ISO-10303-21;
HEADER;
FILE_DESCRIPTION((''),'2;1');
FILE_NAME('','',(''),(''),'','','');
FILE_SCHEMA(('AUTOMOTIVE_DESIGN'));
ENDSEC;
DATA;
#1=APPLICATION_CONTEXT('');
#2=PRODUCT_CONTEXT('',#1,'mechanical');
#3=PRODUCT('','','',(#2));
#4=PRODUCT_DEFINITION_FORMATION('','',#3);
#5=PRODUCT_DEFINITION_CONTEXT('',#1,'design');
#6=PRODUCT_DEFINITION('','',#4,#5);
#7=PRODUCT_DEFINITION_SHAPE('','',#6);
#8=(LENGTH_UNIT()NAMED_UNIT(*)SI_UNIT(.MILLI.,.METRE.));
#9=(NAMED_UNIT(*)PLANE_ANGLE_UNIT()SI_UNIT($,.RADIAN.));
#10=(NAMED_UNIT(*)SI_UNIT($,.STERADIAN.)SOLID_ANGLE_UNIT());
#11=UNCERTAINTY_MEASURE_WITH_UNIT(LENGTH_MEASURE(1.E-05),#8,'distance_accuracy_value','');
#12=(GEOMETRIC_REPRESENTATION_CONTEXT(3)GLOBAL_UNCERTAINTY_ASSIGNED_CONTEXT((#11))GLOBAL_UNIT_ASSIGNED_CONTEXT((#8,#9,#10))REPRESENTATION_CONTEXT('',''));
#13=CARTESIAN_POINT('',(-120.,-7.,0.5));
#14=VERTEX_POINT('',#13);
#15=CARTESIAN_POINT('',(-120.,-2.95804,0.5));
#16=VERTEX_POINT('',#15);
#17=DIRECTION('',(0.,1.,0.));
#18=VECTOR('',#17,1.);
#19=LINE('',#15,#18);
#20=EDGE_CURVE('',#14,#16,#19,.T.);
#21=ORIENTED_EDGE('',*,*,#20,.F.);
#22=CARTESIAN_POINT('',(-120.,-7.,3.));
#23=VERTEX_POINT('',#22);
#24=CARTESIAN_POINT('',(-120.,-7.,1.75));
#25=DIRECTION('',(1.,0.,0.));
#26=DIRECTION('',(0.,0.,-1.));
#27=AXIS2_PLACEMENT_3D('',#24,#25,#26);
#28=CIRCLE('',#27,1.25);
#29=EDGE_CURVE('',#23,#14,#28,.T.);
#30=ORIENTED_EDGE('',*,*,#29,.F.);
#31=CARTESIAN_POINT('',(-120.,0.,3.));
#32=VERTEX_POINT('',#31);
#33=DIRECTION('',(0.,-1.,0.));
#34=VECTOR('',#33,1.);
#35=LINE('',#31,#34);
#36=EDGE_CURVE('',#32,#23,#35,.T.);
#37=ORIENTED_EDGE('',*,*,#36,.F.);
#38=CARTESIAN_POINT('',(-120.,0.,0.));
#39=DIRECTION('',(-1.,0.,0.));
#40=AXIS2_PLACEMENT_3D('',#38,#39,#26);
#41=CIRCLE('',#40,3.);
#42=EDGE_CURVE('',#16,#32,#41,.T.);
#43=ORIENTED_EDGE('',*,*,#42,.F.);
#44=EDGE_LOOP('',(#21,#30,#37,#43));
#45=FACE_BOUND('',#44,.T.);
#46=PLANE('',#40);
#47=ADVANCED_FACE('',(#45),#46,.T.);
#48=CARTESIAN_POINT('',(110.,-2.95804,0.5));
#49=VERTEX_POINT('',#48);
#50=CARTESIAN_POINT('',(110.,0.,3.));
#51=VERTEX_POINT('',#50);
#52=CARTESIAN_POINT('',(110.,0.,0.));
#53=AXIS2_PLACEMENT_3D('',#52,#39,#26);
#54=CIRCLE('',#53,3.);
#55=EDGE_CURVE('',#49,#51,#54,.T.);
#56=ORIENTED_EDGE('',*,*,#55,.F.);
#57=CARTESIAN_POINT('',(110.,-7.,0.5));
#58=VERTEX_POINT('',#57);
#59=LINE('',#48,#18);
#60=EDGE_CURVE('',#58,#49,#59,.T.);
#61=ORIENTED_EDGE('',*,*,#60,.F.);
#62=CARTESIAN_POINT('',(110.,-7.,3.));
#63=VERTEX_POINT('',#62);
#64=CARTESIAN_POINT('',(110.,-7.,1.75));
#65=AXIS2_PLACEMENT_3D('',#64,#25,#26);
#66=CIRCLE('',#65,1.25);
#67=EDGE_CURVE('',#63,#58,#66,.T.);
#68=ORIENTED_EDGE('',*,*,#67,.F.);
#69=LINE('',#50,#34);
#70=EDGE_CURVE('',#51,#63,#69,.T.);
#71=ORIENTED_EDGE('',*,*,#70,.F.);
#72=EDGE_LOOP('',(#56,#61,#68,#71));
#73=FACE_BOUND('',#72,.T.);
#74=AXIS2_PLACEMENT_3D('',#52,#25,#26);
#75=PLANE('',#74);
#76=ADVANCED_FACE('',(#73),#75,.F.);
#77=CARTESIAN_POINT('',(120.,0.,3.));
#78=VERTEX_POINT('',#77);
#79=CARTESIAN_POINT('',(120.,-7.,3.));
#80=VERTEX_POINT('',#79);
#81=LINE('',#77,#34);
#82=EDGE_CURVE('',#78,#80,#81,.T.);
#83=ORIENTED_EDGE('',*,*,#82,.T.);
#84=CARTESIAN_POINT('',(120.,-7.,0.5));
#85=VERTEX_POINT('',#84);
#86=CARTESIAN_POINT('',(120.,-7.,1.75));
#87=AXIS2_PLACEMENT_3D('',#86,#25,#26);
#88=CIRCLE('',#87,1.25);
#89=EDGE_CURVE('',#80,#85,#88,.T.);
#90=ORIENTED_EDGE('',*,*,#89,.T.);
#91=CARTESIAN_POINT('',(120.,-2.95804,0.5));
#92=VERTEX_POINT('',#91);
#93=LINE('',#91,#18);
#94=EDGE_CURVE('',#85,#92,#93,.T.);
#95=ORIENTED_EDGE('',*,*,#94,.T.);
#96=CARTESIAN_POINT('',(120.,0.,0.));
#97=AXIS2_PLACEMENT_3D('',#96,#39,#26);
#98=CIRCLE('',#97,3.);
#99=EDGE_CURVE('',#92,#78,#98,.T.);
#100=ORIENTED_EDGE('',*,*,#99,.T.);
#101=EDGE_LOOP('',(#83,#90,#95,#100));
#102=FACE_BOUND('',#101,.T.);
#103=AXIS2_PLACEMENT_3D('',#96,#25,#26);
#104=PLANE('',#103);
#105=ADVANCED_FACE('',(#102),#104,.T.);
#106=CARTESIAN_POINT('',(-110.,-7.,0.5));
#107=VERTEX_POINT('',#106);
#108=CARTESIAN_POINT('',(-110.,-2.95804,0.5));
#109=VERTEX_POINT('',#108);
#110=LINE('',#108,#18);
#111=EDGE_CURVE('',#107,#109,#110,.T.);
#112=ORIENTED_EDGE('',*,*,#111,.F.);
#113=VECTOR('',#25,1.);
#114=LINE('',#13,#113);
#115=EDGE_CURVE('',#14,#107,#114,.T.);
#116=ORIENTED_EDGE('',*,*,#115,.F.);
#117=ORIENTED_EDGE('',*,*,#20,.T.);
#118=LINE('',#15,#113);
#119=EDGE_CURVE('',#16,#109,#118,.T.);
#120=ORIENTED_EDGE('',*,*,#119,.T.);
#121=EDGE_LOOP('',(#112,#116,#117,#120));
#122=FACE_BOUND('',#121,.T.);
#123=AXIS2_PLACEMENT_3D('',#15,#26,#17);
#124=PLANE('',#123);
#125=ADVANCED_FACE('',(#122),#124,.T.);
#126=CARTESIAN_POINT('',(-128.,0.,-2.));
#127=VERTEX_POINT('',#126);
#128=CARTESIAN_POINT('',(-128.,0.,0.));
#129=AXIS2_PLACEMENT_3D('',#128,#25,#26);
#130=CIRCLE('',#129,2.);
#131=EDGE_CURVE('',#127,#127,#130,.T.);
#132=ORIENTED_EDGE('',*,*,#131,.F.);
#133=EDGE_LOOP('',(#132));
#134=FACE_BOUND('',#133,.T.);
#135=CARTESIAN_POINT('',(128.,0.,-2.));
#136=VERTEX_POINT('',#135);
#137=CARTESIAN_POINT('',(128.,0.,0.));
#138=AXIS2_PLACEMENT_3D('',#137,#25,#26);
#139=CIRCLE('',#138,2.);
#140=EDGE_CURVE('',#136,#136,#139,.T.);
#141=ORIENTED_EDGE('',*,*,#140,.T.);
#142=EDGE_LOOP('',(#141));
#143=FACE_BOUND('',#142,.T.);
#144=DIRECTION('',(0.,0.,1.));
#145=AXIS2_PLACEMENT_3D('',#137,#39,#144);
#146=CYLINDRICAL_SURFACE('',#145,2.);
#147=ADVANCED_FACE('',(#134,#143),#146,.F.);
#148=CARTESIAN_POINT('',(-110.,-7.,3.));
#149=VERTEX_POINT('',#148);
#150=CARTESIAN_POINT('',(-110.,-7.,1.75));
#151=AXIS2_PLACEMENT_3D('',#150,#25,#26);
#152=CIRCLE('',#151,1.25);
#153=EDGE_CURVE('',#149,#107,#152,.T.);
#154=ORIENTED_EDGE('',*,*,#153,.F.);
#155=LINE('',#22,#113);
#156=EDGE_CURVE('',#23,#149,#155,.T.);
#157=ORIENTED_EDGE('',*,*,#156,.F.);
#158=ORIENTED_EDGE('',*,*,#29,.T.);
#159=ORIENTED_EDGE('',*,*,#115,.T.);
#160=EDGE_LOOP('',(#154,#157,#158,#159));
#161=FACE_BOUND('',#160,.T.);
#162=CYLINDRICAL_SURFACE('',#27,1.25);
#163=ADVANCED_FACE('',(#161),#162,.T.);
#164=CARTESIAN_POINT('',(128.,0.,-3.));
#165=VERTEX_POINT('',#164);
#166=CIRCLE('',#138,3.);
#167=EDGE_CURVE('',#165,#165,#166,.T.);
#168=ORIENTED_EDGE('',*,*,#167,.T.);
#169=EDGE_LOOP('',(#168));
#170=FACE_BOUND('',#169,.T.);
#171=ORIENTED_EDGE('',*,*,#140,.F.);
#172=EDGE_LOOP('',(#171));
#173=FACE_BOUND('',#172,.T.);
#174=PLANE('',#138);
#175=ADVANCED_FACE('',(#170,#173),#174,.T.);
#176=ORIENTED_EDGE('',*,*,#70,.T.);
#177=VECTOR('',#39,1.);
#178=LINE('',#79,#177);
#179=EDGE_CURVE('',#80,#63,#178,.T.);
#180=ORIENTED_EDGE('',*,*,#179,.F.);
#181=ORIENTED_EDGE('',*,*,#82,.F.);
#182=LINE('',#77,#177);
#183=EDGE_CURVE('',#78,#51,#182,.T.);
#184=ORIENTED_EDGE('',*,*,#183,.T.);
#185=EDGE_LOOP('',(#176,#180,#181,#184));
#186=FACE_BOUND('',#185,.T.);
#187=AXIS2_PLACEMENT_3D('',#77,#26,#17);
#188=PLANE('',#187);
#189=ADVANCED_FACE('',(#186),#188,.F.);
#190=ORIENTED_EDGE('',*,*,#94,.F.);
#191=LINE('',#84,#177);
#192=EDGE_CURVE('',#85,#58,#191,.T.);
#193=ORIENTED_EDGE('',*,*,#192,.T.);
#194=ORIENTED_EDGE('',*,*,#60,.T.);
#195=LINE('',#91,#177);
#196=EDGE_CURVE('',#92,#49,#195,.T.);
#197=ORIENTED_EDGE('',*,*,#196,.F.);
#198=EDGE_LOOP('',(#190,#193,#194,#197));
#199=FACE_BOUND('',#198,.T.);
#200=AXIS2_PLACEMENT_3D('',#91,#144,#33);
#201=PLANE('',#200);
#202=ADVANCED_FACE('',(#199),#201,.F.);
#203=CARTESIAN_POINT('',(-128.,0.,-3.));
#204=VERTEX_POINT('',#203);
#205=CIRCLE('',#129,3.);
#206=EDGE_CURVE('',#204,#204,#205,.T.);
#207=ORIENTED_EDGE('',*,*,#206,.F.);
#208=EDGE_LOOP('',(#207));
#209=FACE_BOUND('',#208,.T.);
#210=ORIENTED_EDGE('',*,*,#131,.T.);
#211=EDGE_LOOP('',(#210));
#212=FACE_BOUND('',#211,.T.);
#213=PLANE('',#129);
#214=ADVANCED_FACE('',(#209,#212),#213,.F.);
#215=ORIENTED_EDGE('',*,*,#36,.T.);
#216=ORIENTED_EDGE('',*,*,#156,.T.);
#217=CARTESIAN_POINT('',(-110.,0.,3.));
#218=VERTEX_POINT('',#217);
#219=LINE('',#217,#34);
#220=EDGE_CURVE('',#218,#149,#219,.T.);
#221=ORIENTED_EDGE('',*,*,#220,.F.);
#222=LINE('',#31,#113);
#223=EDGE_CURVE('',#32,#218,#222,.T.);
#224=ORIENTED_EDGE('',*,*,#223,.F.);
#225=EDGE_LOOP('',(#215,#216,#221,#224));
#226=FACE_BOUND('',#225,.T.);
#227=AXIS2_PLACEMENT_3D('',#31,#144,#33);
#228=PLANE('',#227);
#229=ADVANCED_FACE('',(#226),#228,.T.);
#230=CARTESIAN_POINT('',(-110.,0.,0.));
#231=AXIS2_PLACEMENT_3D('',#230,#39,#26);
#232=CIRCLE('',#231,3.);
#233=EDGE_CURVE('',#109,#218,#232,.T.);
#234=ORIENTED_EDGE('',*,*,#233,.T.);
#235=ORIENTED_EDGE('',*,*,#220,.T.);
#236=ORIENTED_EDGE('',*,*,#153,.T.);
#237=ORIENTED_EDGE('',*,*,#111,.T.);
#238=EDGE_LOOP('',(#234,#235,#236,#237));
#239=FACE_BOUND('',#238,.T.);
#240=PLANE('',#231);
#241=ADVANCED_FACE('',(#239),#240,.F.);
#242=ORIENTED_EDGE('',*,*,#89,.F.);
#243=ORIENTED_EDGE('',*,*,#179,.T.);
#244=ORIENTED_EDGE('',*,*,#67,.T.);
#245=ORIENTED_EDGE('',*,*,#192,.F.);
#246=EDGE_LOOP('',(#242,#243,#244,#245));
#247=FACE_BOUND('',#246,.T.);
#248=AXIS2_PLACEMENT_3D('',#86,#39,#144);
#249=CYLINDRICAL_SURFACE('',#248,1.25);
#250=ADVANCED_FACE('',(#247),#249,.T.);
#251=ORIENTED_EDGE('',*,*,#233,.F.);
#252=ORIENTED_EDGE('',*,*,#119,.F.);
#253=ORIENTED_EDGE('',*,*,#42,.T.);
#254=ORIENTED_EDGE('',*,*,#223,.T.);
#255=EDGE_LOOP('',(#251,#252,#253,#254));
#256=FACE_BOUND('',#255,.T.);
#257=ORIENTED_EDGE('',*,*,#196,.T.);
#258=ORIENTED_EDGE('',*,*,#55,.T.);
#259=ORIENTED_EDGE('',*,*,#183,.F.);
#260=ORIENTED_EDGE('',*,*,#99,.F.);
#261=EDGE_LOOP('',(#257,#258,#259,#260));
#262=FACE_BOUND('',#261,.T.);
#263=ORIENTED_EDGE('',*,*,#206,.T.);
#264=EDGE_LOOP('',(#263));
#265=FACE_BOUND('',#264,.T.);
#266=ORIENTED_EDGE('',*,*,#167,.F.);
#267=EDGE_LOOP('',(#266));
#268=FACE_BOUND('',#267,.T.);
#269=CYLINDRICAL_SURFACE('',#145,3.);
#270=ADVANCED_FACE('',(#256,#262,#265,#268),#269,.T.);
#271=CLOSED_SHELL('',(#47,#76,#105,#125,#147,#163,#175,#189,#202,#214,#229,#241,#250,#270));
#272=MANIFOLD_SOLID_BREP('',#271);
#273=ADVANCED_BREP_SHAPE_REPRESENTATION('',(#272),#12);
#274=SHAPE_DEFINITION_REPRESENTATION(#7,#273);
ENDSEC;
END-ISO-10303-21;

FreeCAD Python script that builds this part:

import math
import FreeCAD as App
import Part
import Sketcher

V = App.Vector
Q = App.Units.Quantity

doc = App.newDocument("Part")
body = doc.addObject("PartDesign::Body", "Body")

# Sketch on YZ plane
sketch1 = body.newObject("Sketcher::SketchObject", "Sketch")
sketch1.AttachmentSupport = (doc.getObject("YZ_Plane"), [""])
sketch1.MapMode = "FlatFace"
sketch1.addGeometry(Part.Circle(V(0, 0, 0), V(0, 0, 1), 3), False)
sketch1.addGeometry(Part.Circle(V(0, 0, 0), V(0, 0, 1), 2), False)
sketch1.addConstraint(Sketcher.Constraint("Coincident", 0, 3, -1, 1))
sketch1.addConstraint(Sketcher.Constraint("Coincident", 1, 3, -1, 1))
sketch1.addConstraint(Sketcher.Constraint("Diameter", 0, Q("6 mm")))
sketch1.addConstraint(Sketcher.Constraint("Diameter", 1, Q("4 mm")))
pad1 = body.newObject("PartDesign::Pad", "Pad")
pad1.Profile = sketch1
pad1.Length = 256
pad1.Midplane = True

# Sketch on YZ plane
sketch2 = body.newObject("Sketcher::SketchObject", "Sketch001")
sketch2.AttachmentSupport = (doc.getObject("YZ_Plane"), [""])
sketch2.MapMode = "FlatFace"
sketch2.AttachmentOffset = App.Placement(V(0, 0, 120), App.Rotation())
sketch2.addGeometry(Part.LineSegment(V(0, 3, 0), V(-7, 3, 0)), False)
sketch2.addGeometry(Part.ArcOfCircle(Part.Circle(V(-7, 1.8, 0), V(0, 0, 1), 1.2), math.radians(90), math.radians(270)), False)
sketch2.addGeometry(Part.LineSegment(V(-7, 0.5, 0), V(-3, 0.5, 0)), False)
sketch2.addGeometry(Part.ArcOfCircle(Part.Circle(V(0, 0, 0), V(0, 0, 1), 3), math.radians(90), math.radians(170)), False)
sketch2.addConstraint(Sketcher.Constraint("Tangent", 0, 2, 1, 1))
sketch2.addConstraint(Sketcher.Constraint("Tangent", 1, 2, 2, 1))
sketch2.addConstraint(Sketcher.Constraint("Coincident", 2, 2, 3, 2))
sketch2.addConstraint(Sketcher.Constraint("Tangent", 3, 1, 0, 1))
sketch2.addConstraint(Sketcher.Constraint("Horizontal", 0))
sketch2.addConstraint(Sketcher.Constraint("Horizontal", 2))
sketch2.addConstraint(Sketcher.Constraint("Coincident", 3, 3, -1, 1))
sketch2.addConstraint(Sketcher.Constraint("Radius", 3, Q("3 mm")))
sketch2.addConstraint(Sketcher.Constraint("DistanceX", 0, 2, 0, 1, Q("7 mm")))
sketch2.addConstraint(Sketcher.Constraint("Radius", 1, Q("1.25 mm")))
pad2 = body.newObject("PartDesign::Pad", "Pad001")
pad2.Profile = sketch2
pad2.Length = 10
pad2.Reversed = True
doc.recompute()

mirrored = body.newObject("PartDesign::Mirrored", "Mirrored")
mirrored.Originals = [pad2]
mirrored.MirrorPlane = (doc.getObject("YZ_Plane"), [""])
body.Tip = mirrored

doc.recompute()
